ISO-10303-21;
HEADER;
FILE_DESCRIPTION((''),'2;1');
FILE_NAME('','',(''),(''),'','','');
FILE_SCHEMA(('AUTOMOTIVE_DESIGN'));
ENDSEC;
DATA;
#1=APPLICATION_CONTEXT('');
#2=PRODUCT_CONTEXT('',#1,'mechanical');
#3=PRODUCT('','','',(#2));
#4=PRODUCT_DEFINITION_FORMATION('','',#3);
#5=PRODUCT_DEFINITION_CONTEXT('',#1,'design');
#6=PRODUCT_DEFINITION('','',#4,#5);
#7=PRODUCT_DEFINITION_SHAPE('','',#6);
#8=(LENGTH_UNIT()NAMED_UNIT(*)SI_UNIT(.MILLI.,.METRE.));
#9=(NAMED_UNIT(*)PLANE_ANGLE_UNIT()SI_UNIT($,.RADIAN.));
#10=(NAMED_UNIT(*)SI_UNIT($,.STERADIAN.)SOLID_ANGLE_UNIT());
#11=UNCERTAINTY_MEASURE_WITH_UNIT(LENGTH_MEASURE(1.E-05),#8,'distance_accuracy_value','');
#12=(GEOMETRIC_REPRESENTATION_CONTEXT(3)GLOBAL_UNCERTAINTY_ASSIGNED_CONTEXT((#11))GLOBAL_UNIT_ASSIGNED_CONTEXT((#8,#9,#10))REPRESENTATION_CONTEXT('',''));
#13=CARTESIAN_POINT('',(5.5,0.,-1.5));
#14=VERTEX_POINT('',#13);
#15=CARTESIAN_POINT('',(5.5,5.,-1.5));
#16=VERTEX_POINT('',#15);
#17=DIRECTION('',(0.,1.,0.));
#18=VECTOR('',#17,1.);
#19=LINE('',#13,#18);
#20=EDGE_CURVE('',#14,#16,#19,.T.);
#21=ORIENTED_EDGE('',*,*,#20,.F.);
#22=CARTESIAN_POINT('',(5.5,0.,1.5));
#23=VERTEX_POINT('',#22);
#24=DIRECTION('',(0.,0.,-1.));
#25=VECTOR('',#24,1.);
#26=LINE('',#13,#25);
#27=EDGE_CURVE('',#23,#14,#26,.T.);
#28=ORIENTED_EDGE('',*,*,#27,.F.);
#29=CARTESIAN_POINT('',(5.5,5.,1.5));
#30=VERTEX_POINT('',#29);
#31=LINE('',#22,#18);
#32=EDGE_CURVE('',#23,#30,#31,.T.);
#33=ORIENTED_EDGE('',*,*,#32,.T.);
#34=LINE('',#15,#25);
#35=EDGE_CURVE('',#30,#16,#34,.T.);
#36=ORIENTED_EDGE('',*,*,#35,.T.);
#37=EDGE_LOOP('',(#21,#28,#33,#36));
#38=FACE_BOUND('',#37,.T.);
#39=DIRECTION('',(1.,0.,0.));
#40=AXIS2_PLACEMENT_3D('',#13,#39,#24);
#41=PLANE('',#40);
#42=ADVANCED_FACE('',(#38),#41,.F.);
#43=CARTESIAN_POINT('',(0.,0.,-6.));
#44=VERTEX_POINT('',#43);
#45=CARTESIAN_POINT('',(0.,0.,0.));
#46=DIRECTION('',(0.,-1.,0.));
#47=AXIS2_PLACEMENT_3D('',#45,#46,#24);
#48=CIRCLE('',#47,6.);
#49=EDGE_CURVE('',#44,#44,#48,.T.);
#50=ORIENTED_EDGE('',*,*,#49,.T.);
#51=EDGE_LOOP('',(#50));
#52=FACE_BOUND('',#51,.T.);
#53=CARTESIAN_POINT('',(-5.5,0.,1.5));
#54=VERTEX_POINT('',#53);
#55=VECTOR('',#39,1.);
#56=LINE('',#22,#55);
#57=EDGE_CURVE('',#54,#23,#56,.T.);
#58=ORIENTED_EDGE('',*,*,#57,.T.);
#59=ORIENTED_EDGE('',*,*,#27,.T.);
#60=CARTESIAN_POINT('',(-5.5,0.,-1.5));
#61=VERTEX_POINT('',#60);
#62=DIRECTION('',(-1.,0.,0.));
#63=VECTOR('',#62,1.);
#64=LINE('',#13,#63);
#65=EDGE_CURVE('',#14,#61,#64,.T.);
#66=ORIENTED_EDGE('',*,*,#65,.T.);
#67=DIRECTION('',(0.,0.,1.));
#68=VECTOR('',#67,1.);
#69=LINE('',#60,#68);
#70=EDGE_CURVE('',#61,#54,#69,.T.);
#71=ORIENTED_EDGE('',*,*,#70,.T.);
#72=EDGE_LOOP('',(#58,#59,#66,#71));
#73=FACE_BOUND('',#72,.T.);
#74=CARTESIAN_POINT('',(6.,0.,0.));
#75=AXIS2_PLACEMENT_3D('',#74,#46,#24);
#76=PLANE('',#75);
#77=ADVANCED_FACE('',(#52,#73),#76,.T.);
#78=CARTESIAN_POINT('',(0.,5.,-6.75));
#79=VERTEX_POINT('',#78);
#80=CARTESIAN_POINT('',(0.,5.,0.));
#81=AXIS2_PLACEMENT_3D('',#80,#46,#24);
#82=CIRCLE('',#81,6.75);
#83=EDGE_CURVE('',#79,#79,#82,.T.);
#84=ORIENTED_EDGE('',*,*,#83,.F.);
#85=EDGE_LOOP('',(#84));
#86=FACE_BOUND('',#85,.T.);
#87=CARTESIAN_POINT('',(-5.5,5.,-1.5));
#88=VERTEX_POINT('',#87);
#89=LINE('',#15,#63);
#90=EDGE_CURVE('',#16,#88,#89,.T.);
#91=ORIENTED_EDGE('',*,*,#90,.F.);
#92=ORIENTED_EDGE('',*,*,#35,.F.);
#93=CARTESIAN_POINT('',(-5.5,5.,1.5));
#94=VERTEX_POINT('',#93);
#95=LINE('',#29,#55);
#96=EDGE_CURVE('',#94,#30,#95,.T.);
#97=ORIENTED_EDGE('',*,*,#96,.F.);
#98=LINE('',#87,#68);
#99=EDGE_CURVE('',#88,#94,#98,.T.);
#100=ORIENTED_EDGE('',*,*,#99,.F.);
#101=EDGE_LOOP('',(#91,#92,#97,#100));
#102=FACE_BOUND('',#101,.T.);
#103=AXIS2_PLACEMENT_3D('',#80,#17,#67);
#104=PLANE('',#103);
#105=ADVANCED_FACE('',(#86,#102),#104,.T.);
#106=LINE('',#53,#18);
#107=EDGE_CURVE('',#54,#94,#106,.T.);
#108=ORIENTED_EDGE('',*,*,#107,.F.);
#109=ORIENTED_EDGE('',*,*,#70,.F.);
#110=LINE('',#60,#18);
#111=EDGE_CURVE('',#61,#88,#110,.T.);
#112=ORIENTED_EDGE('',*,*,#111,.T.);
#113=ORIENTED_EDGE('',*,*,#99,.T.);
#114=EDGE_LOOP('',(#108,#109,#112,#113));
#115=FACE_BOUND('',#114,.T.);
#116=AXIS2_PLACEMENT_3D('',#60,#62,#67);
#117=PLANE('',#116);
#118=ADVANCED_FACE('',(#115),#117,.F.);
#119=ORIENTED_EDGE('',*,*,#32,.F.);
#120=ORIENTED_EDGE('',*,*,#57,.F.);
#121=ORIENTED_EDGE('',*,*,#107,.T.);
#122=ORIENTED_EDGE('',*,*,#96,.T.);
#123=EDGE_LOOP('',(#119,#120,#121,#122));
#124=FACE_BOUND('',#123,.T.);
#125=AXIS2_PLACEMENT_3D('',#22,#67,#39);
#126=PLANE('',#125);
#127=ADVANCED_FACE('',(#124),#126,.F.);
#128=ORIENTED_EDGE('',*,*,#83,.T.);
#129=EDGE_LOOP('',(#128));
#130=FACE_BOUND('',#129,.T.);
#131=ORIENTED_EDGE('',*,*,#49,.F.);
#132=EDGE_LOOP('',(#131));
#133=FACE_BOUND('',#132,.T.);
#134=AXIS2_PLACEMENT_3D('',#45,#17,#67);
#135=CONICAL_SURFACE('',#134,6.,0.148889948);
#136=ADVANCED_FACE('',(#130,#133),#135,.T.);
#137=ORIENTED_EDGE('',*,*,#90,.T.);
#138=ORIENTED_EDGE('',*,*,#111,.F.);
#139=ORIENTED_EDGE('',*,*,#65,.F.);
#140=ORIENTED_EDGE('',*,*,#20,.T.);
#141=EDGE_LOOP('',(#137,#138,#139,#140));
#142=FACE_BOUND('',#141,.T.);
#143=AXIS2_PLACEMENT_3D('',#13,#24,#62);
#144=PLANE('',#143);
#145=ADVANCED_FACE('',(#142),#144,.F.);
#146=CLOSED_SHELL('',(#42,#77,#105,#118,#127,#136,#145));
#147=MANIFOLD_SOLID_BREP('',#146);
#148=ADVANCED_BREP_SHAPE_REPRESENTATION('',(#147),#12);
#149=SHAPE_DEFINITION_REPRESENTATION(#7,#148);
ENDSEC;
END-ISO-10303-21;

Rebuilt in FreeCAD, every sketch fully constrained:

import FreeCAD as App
import Part
import Sketcher
from FreeCAD import Vector


def add_polygon(sketch, points):
    """Adds a closed chain of lines whose ends are joined by coincident constraints."""
    first, n = sketch.GeometryCount, len(points)
    for a, b in zip(points, points[1:] + points[:1]):
        sketch.addGeometry(Part.LineSegment(App.Vector(*a, 0), App.Vector(*b, 0)), False)
    for i in range(n):
        sketch.addConstraint(Sketcher.Constraint("Coincident", first + i, 2, first + (i + 1) % n, 1))

doc = App.newDocument("Part")
params = doc.addObject("Spreadsheet::Sheet", "Params")
for row, (alias, value) in enumerate([
    ("sketch1_width", "6 mm"),
    ("sketch1_height", "5 mm"),
    ("sketch1_width2", "6.75 mm"),
    ("revolution_angle", "360 deg"),
    ("sketch2_width", "11 mm"),
    ("sketch2_height", "3 mm"),
], start=1):
    params.set(f"A{row}", alias)
    params.set(f"B{row}", "=" + value)
    params.setAlias(f"B{row}", alias)

body = doc.addObject("PartDesign::Body", "Body")

sketch1 = body.newObject("Sketcher::SketchObject", "Sketch")
sketch1.AttachmentSupport = (doc.getObject("XY_Plane"), [""])
sketch1.MapMode = "FlatFace"
add_polygon(sketch1, [(0, 5), (0, 0), (6, 0), (7, 5)])
sketch1.addConstraint([
    Sketcher.Constraint("Vertical", 0),
    Sketcher.Constraint("Horizontal", 1),
    Sketcher.Constraint("Horizontal", 3),
    Sketcher.Constraint("Coincident", 0, 2, -1, 1),
    Sketcher.Constraint("DistanceX", 1, 1, 1, 2, 6.0),
    Sketcher.Constraint("DistanceY", 0, 2, 0, 1, 5.0),
    Sketcher.Constraint("DistanceX", 3, 2, 3, 1, 6.75),
])
sketch1.setExpression("Constraints[8]", "Params.sketch1_width")
sketch1.setExpression("Constraints[9]", "Params.sketch1_height")
sketch1.setExpression("Constraints[10]", "Params.sketch1_width2")
revolution = body.newObject("PartDesign::Revolution", "Revolution")
revolution.Profile = sketch1
revolution.ReferenceAxis = (sketch1, ["V_Axis"])
revolution.setExpression("Angle", "Params.revolution_angle")

sketch2 = body.newObject("Sketcher::SketchObject", "Sketch001")
sketch2.AttachmentSupport = (doc.getObject("XZ_Plane"), [""])
sketch2.MapMode = "FlatFace"
sketch2.AttachmentOffset = App.Placement(Vector(0, 0, -5), App.Rotation())
add_polygon(sketch2, [(-5.5, -1.5), (-5.5, 1.5), (5.5, 1.5), (5.5, -1.5)])
sketch2.addConstraint([
    Sketcher.Constraint("Vertical", 0),
    Sketcher.Constraint("Horizontal", 1),
    Sketcher.Constraint("Vertical", 2),
    Sketcher.Constraint("Horizontal", 3),
    Sketcher.Constraint("Symmetric", 0, 2, 2, 2, -1, 1),
    Sketcher.Constraint("DistanceX", 1, 1, 1, 2, 11.0),
    Sketcher.Constraint("DistanceY", 0, 1, 0, 2, 3.0),
])
sketch2.setExpression("Constraints[9]", "Params.sketch2_width")
sketch2.setExpression("Constraints[10]", "Params.sketch2_height")
pocket1 = body.newObject("PartDesign::Pocket", "Pocket")
pocket1.Profile = sketch2
pocket1.Type = "ThroughAll"
pocket1.Reversed = True

doc.recompute()
